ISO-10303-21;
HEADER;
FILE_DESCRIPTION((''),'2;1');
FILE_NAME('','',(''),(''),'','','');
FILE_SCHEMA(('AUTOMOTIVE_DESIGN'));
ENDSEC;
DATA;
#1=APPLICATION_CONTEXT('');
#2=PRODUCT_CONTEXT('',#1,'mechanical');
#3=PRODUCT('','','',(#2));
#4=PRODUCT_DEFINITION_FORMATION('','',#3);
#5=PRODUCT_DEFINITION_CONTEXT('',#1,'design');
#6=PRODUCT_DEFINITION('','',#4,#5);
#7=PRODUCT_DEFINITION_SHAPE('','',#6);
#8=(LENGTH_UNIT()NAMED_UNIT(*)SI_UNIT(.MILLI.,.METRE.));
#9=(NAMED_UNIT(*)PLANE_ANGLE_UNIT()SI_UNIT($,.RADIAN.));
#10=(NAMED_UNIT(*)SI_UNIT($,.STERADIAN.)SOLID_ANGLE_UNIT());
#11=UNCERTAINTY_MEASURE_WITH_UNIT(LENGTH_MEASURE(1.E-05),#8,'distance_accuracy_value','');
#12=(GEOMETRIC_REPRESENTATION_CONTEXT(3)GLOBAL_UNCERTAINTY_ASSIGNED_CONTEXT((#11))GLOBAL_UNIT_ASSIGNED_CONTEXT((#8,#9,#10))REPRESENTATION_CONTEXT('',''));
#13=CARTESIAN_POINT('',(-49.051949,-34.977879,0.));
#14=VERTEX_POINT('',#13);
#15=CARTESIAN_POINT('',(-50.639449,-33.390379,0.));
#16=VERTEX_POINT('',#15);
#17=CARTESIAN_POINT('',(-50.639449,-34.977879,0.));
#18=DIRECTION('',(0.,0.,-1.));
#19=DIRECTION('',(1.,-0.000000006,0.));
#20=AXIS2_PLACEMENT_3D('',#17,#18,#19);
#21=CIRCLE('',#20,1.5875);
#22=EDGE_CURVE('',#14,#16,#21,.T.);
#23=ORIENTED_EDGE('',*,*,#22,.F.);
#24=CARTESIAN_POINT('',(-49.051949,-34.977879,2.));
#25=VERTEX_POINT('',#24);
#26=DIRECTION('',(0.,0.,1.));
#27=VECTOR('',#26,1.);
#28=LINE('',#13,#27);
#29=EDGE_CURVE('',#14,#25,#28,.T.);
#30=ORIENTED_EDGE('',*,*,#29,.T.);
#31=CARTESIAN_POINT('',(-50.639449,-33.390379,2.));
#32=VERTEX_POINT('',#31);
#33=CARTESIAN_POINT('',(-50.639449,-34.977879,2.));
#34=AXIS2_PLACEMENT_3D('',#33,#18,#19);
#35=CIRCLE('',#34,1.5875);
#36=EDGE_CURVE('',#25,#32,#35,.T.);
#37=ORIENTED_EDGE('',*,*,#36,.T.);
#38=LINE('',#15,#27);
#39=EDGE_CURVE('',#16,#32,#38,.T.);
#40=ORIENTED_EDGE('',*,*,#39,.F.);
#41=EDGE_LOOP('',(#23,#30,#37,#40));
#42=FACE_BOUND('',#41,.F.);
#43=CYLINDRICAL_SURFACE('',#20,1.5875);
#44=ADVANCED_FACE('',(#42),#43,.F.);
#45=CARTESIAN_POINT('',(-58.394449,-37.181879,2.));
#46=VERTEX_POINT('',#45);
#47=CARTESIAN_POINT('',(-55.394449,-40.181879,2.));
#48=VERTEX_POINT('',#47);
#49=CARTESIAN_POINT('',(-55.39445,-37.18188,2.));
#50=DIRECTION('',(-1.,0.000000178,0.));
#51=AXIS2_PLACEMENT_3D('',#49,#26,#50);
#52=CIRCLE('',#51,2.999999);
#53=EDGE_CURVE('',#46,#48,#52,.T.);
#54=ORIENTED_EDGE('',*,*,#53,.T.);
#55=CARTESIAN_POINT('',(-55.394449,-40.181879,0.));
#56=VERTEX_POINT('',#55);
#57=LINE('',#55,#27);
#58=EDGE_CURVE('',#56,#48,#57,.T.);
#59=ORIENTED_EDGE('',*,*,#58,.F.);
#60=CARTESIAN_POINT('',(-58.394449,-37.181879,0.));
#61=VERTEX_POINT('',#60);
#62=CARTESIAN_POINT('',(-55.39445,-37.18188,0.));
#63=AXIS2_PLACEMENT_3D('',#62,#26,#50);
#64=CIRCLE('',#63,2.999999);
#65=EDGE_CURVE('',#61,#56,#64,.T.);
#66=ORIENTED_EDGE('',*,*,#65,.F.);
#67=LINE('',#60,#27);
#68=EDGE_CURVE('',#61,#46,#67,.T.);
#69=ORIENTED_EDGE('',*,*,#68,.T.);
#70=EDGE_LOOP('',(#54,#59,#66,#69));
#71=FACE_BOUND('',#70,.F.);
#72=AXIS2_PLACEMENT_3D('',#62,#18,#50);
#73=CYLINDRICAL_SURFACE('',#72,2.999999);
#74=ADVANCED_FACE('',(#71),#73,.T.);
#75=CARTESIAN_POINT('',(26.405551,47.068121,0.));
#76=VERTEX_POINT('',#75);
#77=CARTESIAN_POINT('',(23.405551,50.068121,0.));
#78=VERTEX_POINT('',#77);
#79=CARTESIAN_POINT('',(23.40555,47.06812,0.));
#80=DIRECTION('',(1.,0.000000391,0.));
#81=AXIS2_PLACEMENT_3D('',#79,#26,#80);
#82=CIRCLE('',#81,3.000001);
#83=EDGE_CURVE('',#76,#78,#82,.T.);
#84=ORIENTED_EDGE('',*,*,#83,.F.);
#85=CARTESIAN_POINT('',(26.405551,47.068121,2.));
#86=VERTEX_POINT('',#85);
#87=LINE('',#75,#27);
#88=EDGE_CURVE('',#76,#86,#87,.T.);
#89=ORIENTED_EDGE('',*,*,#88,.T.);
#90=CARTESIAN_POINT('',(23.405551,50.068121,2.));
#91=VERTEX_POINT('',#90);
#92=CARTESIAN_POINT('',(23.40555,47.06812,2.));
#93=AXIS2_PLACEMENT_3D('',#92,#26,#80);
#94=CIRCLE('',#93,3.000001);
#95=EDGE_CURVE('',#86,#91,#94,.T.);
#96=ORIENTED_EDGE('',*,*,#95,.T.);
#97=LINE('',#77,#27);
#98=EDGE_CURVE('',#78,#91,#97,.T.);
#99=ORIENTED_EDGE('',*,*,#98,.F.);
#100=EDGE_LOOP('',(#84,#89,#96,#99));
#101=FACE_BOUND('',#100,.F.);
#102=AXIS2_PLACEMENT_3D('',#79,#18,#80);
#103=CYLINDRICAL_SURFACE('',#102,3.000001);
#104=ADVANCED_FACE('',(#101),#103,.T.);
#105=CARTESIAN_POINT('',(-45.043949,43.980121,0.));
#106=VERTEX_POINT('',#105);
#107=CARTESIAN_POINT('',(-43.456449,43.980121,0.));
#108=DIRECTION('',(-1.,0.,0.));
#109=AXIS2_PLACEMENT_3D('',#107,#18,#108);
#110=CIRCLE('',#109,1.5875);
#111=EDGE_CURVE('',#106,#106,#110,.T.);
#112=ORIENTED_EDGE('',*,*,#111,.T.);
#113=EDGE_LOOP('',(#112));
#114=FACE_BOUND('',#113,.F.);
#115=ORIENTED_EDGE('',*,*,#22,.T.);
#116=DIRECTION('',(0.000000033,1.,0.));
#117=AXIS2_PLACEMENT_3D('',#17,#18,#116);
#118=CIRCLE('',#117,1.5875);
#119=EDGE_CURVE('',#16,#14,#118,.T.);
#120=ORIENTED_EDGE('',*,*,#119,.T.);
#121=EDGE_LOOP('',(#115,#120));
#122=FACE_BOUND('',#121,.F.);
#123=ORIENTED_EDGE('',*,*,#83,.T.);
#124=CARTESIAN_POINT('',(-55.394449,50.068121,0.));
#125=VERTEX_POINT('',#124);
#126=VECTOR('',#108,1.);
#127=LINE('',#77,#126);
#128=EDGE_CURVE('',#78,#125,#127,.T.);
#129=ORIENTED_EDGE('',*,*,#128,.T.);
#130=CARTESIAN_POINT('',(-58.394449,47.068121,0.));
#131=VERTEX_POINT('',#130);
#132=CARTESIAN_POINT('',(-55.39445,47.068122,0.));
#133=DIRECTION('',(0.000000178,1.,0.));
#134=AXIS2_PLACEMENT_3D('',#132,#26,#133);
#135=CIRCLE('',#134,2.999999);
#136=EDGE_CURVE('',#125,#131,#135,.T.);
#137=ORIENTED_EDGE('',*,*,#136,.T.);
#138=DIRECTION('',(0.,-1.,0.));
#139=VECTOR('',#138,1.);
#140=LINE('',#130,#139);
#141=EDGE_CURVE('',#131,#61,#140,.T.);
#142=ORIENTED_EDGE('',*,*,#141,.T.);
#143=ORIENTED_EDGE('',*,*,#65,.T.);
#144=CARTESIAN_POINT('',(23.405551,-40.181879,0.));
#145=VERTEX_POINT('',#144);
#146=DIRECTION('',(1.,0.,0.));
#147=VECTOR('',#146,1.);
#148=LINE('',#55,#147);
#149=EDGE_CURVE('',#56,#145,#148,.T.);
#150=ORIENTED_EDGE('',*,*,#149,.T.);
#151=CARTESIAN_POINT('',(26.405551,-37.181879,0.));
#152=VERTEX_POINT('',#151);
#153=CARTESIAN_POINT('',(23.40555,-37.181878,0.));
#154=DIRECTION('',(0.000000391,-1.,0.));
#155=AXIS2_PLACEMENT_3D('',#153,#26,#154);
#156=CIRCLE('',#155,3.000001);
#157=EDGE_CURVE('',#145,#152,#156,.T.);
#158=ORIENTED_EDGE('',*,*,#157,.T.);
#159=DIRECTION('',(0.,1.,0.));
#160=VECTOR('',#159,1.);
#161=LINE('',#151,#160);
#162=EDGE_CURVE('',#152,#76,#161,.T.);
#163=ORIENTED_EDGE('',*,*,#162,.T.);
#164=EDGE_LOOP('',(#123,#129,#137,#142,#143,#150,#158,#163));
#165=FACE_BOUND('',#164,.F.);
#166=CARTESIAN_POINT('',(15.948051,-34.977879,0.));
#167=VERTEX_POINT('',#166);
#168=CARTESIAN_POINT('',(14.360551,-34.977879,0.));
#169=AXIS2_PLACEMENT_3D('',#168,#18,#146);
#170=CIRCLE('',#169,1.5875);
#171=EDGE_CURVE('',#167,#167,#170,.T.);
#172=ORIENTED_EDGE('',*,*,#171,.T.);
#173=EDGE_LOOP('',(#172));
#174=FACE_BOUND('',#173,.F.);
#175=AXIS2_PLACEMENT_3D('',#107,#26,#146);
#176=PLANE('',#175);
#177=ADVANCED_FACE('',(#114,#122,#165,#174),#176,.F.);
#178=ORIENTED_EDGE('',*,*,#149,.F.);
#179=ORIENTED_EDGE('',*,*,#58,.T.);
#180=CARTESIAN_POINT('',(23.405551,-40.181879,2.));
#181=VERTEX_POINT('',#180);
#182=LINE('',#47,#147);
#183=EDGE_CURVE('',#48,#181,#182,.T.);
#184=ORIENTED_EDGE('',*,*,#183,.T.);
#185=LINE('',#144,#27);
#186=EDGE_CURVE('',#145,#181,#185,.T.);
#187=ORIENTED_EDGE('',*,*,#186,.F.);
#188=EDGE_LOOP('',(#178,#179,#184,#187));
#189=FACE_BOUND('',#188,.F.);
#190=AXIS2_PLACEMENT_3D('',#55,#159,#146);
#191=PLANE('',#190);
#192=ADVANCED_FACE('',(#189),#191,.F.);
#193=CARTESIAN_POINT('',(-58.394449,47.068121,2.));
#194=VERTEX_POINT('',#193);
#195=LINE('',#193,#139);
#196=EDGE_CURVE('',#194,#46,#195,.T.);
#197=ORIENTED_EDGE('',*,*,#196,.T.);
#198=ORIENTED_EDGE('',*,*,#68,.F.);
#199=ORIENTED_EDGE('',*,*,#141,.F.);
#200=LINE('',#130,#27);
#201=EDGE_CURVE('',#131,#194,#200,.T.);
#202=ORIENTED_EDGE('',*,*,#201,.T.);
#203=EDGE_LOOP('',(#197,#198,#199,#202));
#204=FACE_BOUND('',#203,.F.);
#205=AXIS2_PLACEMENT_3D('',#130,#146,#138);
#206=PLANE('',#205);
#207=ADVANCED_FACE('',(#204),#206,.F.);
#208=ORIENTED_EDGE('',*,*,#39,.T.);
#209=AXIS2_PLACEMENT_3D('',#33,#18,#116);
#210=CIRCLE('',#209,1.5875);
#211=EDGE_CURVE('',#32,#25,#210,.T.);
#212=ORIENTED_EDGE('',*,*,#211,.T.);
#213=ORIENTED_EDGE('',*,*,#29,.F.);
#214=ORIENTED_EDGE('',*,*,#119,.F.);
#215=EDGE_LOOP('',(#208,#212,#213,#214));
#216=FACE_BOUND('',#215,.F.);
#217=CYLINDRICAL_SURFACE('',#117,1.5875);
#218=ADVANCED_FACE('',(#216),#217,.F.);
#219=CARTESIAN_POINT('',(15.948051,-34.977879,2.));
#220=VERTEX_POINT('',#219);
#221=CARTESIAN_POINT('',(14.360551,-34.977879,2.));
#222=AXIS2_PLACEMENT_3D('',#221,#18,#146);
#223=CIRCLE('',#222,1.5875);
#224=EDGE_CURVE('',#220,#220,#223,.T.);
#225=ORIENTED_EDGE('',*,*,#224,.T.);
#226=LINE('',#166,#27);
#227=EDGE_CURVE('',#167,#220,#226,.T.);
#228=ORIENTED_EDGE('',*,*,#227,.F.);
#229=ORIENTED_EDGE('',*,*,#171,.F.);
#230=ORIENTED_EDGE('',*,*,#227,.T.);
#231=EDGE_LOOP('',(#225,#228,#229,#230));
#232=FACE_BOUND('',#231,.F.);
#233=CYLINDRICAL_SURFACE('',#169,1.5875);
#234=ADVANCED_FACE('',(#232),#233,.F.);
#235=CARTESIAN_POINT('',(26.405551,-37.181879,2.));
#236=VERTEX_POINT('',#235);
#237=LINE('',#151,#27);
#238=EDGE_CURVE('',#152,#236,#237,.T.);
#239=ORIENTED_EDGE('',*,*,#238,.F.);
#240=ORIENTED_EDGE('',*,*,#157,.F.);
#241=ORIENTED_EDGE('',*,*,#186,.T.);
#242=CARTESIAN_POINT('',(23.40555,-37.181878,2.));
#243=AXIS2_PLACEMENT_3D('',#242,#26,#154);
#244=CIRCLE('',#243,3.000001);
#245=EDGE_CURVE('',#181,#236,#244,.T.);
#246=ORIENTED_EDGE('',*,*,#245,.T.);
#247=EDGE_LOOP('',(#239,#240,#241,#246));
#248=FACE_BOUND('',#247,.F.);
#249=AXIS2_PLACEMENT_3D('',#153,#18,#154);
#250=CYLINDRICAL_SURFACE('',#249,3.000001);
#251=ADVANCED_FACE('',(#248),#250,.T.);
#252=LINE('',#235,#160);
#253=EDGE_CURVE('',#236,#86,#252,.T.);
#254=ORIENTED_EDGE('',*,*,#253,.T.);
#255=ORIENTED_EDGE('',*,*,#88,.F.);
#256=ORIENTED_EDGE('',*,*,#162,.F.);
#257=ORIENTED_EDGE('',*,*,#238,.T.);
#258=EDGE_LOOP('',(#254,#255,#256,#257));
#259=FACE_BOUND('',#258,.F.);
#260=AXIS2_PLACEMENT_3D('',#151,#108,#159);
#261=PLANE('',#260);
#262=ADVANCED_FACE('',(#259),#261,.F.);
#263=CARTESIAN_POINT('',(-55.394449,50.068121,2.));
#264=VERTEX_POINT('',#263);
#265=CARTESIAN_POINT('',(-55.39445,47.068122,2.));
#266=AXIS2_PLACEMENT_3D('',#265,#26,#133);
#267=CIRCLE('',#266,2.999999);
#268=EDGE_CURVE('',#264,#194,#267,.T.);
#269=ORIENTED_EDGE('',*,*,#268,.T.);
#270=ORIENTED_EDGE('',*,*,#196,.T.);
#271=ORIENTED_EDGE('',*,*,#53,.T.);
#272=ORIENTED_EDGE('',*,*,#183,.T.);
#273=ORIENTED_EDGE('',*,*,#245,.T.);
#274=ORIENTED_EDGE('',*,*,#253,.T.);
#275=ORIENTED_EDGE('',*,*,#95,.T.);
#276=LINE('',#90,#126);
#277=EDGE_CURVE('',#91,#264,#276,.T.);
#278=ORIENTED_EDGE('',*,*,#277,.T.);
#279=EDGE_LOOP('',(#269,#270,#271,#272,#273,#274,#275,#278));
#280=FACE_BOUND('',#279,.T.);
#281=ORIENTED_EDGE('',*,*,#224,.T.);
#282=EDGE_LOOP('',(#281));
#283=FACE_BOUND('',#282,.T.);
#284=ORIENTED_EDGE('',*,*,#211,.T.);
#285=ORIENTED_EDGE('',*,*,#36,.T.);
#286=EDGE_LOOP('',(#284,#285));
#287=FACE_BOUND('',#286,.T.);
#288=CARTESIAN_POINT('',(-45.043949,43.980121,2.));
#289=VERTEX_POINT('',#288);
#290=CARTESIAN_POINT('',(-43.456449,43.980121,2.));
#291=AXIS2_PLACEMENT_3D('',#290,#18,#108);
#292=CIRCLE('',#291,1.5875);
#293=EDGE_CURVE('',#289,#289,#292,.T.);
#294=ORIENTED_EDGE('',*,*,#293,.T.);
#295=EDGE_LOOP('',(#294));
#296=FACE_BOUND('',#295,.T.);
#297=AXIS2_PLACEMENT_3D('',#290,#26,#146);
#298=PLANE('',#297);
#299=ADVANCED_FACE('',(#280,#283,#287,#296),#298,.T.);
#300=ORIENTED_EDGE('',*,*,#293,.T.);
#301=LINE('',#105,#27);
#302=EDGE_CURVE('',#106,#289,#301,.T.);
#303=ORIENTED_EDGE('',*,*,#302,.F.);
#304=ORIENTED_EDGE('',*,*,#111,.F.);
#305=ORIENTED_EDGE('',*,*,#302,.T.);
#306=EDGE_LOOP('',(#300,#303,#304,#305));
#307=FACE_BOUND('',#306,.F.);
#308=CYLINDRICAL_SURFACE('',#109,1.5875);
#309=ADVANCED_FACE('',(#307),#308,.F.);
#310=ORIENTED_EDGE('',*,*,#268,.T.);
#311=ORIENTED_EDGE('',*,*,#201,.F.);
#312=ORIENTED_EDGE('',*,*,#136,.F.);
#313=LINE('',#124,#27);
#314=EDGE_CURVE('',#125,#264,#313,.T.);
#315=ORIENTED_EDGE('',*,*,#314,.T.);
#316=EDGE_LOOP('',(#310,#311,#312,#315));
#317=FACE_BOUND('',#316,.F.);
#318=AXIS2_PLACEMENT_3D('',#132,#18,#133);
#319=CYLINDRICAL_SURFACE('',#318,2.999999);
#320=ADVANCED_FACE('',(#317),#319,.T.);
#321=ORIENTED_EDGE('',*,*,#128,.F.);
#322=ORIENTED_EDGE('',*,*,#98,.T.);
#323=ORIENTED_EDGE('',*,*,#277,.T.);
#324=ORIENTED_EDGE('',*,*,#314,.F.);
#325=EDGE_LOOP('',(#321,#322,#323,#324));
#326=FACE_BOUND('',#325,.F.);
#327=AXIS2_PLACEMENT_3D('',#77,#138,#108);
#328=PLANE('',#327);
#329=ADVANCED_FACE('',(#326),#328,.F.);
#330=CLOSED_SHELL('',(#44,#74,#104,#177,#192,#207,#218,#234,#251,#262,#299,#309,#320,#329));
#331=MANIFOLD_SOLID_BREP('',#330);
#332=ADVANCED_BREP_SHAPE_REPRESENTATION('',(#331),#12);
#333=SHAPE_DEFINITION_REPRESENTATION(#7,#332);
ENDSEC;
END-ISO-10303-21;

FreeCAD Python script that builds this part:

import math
import FreeCAD as App
import Part
import Sketcher
Q = App.Units.Quantity

doc = App.newDocument("Part")
body = doc.addObject("PartDesign::Body", "Body")

sketch1 = body.newObject("Sketcher::SketchObject", "Sketch")
sketch1.AttachmentSupport = (doc.getObject("XY_Plane"), [""])
sketch1.MapMode = "FlatFace"
sketch1.addGeometry([
    Part.LineSegment(App.Vector(23.405551, 50.068121, 0), App.Vector(-55.394449, 50.068121, 0)),
    Part.ArcOfCircle(Part.Circle(App.Vector(-55.39445, 47.068122, 0), App.Vector(0, 0, 1), 2.999999), math.radians(89.99999), math.radians(180.00001)),
    Part.LineSegment(App.Vector(-58.394449, 47.068121, 0), App.Vector(-58.394449, -37.181879, 0)),
    Part.ArcOfCircle(Part.Circle(App.Vector(-55.39445, -37.18188, 0), App.Vector(0, 0, 1), 2.999999), math.radians(179.99999), math.radians(270.00001)),
    Part.LineSegment(App.Vector(-55.394449, -40.181879, 0), App.Vector(23.405551, -40.181879, 0)),
    Part.ArcOfCircle(Part.Circle(App.Vector(23.40555, -37.181878, 0), App.Vector(0, 0, 1), 3.000001), math.radians(-89.999978), math.radians(-0.000022)),
    Part.LineSegment(App.Vector(26.405551, -37.181879, 0), App.Vector(26.405551, 47.068121, 0)),
    Part.ArcOfCircle(Part.Circle(App.Vector(23.40555, 47.06812, 0), App.Vector(0, 0, 1), 3.000001), math.radians(0.000022), math.radians(89.999978)),
    Part.ArcOfCircle(Part.Circle(App.Vector(-50.639449, -34.977879, 0), App.Vector(0, 0, 1), 1.5875), math.radians(90), math.radians(360)),
    Part.ArcOfCircle(Part.Circle(App.Vector(-50.639449, -34.977879, 0), App.Vector(0, 0, 1), 1.5875), math.radians(0.000002), math.radians(89.999998)),
    Part.Circle(App.Vector(14.360551, -34.977879, 0), App.Vector(0, 0, 1), 1.5875),
    Part.Circle(App.Vector(-43.456449, 43.980121, 0), App.Vector(0, 0, 1), 1.5875),
], False)
sketch1.addConstraint([
    Sketcher.Constraint("Tangent", 0, 2, 1, 1),
    Sketcher.Constraint("Tangent", 1, 2, 2, 1),
    Sketcher.Constraint("Tangent", 2, 2, 3, 1),
    Sketcher.Constraint("Tangent", 3, 2, 4, 1),
    Sketcher.Constraint("Tangent", 4, 2, 5, 1),
    Sketcher.Constraint("Tangent", 5, 2, 6, 1),
    Sketcher.Constraint("Tangent", 6, 2, 7, 1),
    Sketcher.Constraint("Tangent", 7, 2, 0, 1),
    Sketcher.Constraint("Tangent", 8, 1, 9, 2),
    Sketcher.Constraint("Coincident", 9, 1, 8, 2),
    Sketcher.Constraint("Horizontal", 0),
    Sketcher.Constraint("Vertical", 2),
    Sketcher.Constraint("Horizontal", 4),
    Sketcher.Constraint("Vertical", 6),
    Sketcher.Constraint("Equal", 1, 3),
    Sketcher.Constraint("Equal", 3, 5),
    Sketcher.Constraint("Equal", 5, 7),
    Sketcher.Constraint("Equal", 9, 10),
    Sketcher.Constraint("Equal", 10, 11),
    Sketcher.Constraint("Horizontal", 9, 3, 10, 3),
    Sketcher.Constraint("Horizontal", 10, 3, 9, 1),
    Sketcher.Constraint("Vertical", 9, 3, 8, 1),
    Sketcher.Constraint("Radius", 1, Q("2.999999 mm")),
    Sketcher.Constraint("Diameter", 10, Q("3.175 mm")),
    Sketcher.Constraint("DistanceX", 0, 2, 0, 1, Q("78.8 mm")),
    Sketcher.Constraint("DistanceX", 8, 3, 10, 3, Q("65 mm")),
    Sketcher.Constraint("DistanceY", 2, 2, 2, 1, Q("84.25 mm")),
    Sketcher.Constraint("DistanceX", 3, 3, 8, 3, Q("4.755001 mm")),
    Sketcher.Constraint("DistanceY", 3, 3, 8, 3, Q("2.204001 mm")),
    Sketcher.Constraint("DistanceX", 1, 3, 11, 3, Q("11.938001 mm")),
    Sketcher.Constraint("DistanceY", 11, 3, 1, 3, Q("3.088001 mm")),
    Sketcher.Constraint("DistanceX", 1, 3, -1, 1, Q("55.39445 mm")),
    Sketcher.Constraint("DistanceY", -1, 1, 1, 3, Q("47.068122 mm")),
])
pad1 = body.newObject("PartDesign::Pad", "Pad")
pad1.Profile = sketch1
pad1.Length = 2

doc.recompute()
